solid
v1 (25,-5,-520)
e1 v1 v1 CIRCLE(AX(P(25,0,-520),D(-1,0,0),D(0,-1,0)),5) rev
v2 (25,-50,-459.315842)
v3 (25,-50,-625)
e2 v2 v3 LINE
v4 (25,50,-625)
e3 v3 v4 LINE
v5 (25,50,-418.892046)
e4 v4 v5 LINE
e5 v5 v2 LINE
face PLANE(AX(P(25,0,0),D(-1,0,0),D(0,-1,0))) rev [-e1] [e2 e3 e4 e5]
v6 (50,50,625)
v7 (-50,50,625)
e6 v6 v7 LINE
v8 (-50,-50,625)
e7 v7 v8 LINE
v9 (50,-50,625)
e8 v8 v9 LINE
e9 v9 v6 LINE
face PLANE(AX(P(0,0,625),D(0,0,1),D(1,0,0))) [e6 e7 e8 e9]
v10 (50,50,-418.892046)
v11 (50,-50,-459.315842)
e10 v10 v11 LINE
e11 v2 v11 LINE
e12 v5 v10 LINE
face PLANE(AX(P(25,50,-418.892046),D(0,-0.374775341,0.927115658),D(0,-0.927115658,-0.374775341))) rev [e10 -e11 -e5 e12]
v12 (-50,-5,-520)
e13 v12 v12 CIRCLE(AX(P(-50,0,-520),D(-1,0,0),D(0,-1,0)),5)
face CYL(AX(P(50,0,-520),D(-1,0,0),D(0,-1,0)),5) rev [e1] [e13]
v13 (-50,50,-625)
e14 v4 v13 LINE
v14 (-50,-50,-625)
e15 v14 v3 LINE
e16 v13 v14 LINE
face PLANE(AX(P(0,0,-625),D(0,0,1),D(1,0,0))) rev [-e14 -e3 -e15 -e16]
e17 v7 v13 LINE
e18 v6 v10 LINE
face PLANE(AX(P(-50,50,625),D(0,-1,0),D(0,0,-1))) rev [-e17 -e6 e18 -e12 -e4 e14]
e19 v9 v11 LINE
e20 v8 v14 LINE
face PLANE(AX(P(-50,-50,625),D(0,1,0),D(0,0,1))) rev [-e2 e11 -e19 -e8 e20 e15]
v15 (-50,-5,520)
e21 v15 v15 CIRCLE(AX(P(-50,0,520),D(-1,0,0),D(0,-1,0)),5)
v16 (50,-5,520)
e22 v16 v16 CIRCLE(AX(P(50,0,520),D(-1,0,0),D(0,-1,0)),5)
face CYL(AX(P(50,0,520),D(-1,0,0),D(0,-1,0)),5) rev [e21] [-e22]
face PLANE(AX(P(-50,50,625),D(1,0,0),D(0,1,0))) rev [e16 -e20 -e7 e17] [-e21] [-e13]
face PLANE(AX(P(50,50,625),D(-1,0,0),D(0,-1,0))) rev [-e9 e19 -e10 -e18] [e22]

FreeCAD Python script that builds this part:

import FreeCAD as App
import Part
import Sketcher
Q = App.Units.Quantity

doc = App.newDocument("Part")
body = doc.addObject("PartDesign::Body", "Body")

sketch1 = body.newObject("Sketcher::SketchObject", "Sketch")
sketch1.AttachmentSupport = (doc.getObject("XY_Plane"), [""])
sketch1.MapMode = "FlatFace"
sketch1.addGeometry([
    Part.LineSegment(App.Vector(-50, 50, 0), App.Vector(-50, -50, 0)),
    Part.LineSegment(App.Vector(-50, -50, 0), App.Vector(50, -50, 0)),
    Part.LineSegment(App.Vector(50, -50, 0), App.Vector(50, 50, 0)),
    Part.LineSegment(App.Vector(50, 50, 0), App.Vector(-50, 50, 0)),
], False)
sketch1.addConstraint([
    Sketcher.Constraint("Coincident", 0, 2, 1, 1),
    Sketcher.Constraint("Coincident", 1, 2, 2, 1),
    Sketcher.Constraint("Coincident", 2, 2, 3, 1),
    Sketcher.Constraint("Coincident", 3, 2, 0, 1),
    Sketcher.Constraint("Vertical", 0),
    Sketcher.Constraint("Horizontal", 1),
    Sketcher.Constraint("Vertical", 2),
    Sketcher.Constraint("Horizontal", 3),
    Sketcher.Constraint("Symmetric", 0, 2, 2, 2, -1, 1),
    Sketcher.Constraint("Equal", 3, 0),
    Sketcher.Constraint("DistanceX", 1, 1, 1, 2, Q("100 mm")),
])
pad1 = body.newObject("PartDesign::Pad", "Pad")
pad1.Profile = sketch1
pad1.Length = 1250
pad1.Midplane = True

sketch2 = body.newObject("Sketcher::SketchObject", "Sketch001")
sketch2.AttachmentSupport = (doc.getObject("YZ_Plane"), [""])
sketch2.MapMode = "FlatFace"
sketch2.AttachmentOffset = App.Placement(App.Vector(0, 0, -50), App.Rotation())
sketch2.addGeometry([
    Part.Circle(App.Vector(0, -520, 0), App.Vector(0, 0, 1), 5),
    Part.Circle(App.Vector(0, 520, 0), App.Vector(0, 0, 1), 5),
], False)
sketch2.addConstraint([
    Sketcher.Constraint("Equal", 0, 1),
    Sketcher.Constraint("Symmetric", 0, 3, 1, 3, -1, 1),
    Sketcher.Constraint("PointOnObject", 0, 3, -2),
    Sketcher.Constraint("Diameter", 0, Q("10 mm")),
    Sketcher.Constraint("DistanceY", 0, 3, -1, 1, Q("520 mm")),
])
pocket1 = body.newObject("PartDesign::Pocket", "Pocket")
pocket1.Profile = sketch2
pocket1.Type = "ThroughAll"
pocket1.Reversed = True

sketch3 = body.newObject("Sketcher::SketchObject", "Sketch002")
sketch3.AttachmentSupport = (doc.getObject("YZ_Plane"), [""])
sketch3.MapMode = "FlatFace"
sketch3.AttachmentOffset = App.Placement(App.Vector(0, 0, 50), App.Rotation())
sketch3.addGeometry([
    Part.LineSegment(App.Vector(50, -419, 0), App.Vector(-50, -459, 0)),
    Part.LineSegment(App.Vector(-50, -459, 0), App.Vector(-50, -625, 0)),
    Part.LineSegment(App.Vector(-50, -625, 0), App.Vector(50, -625, 0)),
    Part.LineSegment(App.Vector(50, -625, 0), App.Vector(50, -419, 0)),
], False)
sketch3.addConstraint([
    Sketcher.Constraint("Coincident", 0, 2, 1, 1),
    Sketcher.Constraint("Coincident", 1, 2, 2, 1),
    Sketcher.Constraint("Coincident", 2, 2, 3, 1),
    Sketcher.Constraint("Coincident", 3, 2, 0, 1),
    Sketcher.Constraint("Vertical", 1),
    Sketcher.Constraint("Horizontal", 2),
    Sketcher.Constraint("Vertical", 3),
    Sketcher.Constraint("DistanceX", 2, 1, 2, 2, Q("100 mm")),
    Sketcher.Constraint("DistanceX", 0, 2, -1, 1, Q("50 mm")),
    Sketcher.Constraint("DistanceY", 1, 2, -1, 1, Q("625 mm")),
    Sketcher.Constraint("DistanceY", 1, 2, 1, 1, Q("165.684158 mm")),
    Sketcher.Constraint("DistanceY", 3, 1, 3, 2, Q("206.107954 mm")),
])
pocket2 = body.newObject("PartDesign::Pocket", "Pocket001")
pocket2.Profile = sketch3
pocket2.Length = 25

doc.recompute()
